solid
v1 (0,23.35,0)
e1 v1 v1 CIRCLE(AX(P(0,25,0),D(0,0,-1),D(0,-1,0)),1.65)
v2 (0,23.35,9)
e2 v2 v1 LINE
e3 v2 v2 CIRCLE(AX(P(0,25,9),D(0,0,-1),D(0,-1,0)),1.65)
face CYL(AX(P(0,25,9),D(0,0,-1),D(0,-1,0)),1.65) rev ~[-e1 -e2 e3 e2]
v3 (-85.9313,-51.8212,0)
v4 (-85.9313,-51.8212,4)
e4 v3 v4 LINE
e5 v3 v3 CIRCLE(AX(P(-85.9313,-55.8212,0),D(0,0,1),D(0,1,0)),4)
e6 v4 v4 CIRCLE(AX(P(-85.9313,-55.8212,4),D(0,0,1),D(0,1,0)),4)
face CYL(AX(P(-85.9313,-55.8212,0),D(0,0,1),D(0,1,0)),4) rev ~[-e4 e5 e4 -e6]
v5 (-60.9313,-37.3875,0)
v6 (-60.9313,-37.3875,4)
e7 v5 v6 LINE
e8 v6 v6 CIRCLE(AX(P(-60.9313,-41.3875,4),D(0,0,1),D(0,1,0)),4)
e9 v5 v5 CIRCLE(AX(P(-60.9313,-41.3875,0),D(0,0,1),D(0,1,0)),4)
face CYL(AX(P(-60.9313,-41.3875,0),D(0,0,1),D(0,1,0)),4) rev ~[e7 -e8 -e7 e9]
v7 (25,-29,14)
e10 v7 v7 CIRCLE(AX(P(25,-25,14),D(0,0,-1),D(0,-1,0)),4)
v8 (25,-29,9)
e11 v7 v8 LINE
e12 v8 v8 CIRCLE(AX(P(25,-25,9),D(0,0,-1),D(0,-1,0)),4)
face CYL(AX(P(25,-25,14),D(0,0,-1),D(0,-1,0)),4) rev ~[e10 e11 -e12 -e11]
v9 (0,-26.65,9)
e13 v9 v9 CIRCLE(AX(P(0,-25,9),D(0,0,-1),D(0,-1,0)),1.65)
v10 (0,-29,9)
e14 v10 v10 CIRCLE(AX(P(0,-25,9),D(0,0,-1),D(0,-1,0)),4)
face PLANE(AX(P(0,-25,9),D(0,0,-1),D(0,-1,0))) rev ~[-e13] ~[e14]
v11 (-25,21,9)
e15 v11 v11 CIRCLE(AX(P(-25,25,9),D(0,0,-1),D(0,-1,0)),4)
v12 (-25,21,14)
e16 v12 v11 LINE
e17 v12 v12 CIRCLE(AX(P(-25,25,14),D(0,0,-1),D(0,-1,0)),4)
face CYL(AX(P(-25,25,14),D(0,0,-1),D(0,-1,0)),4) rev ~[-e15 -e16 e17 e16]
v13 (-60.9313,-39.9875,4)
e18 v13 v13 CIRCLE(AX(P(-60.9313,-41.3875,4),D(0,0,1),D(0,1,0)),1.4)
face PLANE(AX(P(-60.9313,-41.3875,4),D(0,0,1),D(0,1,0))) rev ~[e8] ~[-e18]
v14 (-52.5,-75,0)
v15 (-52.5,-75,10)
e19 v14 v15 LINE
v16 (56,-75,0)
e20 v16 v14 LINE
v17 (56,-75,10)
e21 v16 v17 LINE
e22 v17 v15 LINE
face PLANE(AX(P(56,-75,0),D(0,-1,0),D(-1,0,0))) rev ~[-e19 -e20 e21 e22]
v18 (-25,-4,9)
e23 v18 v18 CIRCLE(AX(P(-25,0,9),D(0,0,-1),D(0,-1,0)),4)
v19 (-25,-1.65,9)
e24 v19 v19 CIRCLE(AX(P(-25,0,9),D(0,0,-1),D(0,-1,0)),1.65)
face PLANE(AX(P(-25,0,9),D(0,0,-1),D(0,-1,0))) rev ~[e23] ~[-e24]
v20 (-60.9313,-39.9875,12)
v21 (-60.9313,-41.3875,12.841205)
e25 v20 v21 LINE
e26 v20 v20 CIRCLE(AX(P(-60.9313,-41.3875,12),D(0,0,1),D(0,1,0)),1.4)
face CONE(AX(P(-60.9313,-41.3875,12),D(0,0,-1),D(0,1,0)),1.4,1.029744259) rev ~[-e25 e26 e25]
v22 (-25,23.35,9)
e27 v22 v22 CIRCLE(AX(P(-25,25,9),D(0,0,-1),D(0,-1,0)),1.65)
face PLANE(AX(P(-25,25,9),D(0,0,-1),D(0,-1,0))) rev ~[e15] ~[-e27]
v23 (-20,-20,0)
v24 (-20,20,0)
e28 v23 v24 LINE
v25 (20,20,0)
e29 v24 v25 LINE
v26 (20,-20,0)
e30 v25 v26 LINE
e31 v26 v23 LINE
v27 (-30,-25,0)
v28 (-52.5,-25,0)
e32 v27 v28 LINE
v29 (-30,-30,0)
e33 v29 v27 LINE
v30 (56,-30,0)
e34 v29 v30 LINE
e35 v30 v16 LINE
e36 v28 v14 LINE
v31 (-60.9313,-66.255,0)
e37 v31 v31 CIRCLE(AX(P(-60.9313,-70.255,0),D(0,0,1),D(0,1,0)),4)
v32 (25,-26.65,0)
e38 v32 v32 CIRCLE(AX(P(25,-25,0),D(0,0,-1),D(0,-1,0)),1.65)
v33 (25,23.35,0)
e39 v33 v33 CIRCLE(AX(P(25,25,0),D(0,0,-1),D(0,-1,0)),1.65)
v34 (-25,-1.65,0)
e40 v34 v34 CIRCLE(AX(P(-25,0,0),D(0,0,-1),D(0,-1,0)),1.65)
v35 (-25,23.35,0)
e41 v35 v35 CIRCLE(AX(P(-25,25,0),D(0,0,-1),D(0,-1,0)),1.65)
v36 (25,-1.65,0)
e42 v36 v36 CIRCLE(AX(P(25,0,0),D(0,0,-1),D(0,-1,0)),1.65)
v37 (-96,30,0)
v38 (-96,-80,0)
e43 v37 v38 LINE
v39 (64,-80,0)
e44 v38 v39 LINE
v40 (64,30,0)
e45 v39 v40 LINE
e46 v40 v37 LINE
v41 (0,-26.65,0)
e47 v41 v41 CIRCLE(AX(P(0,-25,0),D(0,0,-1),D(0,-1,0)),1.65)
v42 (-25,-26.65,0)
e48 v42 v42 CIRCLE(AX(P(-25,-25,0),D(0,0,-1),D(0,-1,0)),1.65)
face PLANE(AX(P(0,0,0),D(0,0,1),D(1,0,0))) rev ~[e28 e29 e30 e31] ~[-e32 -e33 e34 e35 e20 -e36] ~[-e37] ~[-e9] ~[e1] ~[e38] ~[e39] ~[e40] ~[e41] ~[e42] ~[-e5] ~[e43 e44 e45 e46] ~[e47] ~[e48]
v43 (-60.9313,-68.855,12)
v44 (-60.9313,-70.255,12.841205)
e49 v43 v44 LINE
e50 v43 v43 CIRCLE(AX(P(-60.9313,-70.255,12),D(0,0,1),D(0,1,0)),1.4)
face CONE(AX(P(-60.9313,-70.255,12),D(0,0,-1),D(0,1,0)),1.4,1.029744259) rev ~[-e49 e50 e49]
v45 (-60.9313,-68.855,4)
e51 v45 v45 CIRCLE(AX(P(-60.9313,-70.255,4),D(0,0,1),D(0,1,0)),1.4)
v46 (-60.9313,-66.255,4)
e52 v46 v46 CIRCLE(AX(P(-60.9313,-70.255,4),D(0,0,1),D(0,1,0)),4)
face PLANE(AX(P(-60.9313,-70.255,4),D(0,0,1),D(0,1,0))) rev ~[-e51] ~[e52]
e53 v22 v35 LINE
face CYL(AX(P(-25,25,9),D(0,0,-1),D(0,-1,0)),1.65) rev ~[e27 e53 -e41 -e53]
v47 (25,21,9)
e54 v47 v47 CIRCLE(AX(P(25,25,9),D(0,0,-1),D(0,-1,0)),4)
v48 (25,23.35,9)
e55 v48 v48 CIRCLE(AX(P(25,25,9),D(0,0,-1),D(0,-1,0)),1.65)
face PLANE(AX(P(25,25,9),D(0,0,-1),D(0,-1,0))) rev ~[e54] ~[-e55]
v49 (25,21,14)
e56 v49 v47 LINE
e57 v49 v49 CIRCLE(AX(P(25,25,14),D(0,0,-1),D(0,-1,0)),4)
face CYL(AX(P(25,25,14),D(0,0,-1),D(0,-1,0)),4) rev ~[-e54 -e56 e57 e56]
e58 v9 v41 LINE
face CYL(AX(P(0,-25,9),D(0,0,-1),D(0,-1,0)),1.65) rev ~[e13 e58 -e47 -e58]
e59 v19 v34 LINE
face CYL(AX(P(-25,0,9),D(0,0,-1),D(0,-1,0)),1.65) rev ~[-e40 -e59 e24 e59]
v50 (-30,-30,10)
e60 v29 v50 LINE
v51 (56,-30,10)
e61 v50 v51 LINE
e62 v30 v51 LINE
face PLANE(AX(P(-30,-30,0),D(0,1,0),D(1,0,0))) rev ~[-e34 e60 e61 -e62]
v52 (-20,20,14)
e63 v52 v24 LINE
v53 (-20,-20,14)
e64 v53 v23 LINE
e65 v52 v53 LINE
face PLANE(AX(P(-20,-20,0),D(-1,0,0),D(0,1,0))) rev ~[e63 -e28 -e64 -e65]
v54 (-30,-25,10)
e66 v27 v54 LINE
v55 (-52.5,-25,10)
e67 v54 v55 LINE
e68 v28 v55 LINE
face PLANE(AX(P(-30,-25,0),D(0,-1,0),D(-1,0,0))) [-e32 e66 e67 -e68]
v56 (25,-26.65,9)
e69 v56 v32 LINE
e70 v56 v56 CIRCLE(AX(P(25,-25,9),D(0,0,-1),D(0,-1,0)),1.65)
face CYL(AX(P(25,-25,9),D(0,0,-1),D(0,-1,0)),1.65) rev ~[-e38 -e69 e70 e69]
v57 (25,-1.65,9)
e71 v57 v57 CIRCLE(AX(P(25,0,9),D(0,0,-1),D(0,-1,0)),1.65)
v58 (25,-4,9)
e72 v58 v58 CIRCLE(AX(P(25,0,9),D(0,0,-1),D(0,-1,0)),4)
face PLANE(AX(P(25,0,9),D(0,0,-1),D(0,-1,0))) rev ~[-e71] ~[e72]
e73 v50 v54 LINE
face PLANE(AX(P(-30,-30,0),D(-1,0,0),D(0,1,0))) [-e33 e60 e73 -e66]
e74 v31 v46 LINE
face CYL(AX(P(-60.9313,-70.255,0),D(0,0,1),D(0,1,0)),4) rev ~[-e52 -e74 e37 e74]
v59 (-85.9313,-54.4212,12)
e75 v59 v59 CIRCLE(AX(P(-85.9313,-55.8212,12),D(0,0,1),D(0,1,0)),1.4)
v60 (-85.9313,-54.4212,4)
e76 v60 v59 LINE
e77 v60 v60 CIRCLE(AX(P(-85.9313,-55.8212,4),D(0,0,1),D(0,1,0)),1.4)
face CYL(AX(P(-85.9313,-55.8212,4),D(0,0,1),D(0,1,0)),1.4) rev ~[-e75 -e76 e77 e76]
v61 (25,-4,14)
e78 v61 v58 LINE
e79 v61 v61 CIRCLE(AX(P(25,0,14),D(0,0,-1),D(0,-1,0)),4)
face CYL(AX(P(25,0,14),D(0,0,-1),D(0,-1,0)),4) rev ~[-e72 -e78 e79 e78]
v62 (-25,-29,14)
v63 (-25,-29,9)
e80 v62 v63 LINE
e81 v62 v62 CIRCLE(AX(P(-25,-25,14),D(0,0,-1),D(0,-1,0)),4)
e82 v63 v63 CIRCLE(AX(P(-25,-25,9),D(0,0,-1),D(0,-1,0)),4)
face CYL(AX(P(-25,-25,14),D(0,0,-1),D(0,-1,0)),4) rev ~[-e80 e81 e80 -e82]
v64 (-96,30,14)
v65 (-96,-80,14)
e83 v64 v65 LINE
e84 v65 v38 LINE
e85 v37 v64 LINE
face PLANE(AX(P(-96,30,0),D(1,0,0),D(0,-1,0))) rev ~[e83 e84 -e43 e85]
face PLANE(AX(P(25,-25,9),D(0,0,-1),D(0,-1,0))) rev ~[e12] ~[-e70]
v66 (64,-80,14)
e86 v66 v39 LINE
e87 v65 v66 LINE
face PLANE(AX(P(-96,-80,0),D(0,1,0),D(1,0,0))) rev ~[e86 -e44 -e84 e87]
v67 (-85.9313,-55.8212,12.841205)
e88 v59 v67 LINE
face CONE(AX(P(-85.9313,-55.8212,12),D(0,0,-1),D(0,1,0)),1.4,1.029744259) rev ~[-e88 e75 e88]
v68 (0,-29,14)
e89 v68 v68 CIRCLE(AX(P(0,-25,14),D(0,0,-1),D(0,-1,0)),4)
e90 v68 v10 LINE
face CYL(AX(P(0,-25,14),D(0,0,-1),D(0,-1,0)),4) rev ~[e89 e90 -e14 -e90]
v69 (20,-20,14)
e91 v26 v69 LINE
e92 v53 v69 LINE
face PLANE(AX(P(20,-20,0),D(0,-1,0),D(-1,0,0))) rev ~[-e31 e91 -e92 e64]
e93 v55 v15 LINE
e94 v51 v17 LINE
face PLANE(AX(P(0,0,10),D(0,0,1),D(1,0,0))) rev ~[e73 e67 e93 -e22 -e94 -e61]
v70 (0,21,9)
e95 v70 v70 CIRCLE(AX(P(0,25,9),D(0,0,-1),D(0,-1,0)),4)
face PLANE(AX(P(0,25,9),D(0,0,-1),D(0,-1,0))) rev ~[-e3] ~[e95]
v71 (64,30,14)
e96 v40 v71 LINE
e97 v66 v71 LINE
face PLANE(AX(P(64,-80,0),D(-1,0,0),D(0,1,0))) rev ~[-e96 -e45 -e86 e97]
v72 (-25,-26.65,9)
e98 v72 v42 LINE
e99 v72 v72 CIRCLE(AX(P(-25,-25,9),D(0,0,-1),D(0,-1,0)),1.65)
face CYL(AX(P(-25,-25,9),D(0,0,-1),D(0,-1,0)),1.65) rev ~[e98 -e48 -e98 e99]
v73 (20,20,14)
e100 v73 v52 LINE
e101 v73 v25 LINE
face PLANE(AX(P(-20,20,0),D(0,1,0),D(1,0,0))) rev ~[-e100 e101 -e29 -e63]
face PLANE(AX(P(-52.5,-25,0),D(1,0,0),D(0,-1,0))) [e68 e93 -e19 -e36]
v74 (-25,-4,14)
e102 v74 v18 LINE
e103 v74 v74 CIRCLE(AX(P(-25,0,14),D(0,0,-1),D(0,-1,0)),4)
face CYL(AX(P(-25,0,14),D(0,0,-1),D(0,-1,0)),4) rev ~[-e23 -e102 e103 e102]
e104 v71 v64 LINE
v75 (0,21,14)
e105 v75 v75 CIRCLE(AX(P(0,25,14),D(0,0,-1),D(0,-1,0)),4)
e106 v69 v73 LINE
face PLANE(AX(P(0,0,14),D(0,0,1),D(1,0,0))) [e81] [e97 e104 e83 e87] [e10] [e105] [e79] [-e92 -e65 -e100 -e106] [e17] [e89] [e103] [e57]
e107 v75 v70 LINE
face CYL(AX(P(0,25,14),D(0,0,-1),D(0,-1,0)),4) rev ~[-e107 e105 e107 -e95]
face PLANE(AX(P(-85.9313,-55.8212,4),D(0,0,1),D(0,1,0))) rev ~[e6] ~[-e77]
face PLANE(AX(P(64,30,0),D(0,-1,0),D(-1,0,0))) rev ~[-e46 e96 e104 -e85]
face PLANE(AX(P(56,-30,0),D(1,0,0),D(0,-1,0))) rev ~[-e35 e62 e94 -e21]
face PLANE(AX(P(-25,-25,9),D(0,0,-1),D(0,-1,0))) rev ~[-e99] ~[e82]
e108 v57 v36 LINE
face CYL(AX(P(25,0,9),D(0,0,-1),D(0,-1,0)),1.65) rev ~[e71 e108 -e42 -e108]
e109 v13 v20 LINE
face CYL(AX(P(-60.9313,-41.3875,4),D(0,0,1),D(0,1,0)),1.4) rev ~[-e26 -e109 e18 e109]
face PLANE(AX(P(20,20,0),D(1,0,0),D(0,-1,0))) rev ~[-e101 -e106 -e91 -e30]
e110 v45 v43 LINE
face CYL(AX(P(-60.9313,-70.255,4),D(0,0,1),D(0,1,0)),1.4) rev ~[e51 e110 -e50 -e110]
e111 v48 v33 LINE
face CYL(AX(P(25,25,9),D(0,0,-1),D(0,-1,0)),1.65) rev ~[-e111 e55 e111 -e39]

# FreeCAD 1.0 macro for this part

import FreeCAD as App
import Part
import Sketcher

V = App.Vector

doc = App.newDocument("Part")
body = doc.addObject("PartDesign::Body", "Body")

# Sketch on XY plane
sketch1 = doc.addObject("Sketcher::SketchObject", "Sketch")
body.addObject(sketch1)
sketch1.AttachmentSupport = (doc.XY_Plane, [""])
sketch1.MapMode = "FlatFace"
sketch1.addGeometry([
    Part.LineSegment(V(64, -80, 0), V(64, 30, 0)),  # 0
    Part.LineSegment(V(64, 30, 0), V(-96, 30, 0)),  # 1
    Part.LineSegment(V(-96, 30, 0), V(-96, -80, 0)),  # 2
    Part.LineSegment(V(-96, -80, 0), V(64, -80, 0)),  # 3
    Part.LineSegment(V(56, -30, 0), V(56, -75, 0)),  # 4
    Part.LineSegment(V(56, -75, 0), V(-52.5, -75, 0)),  # 5
    Part.LineSegment(V(-52.5, -75, 0), V(-52.5, -25, 0)),  # 6
    Part.LineSegment(V(-52.5, -25, 0), V(-30, -25, 0)),  # 7
    Part.LineSegment(V(-30, -25, 0), V(-30, -30, 0)),  # 8
    Part.LineSegment(V(-30, -30, 0), V(56, -30, 0)),  # 9
    Part.LineSegment(V(20, 20, 0), V(20, -20, 0)),  # 10
    Part.LineSegment(V(20, -20, 0), V(-20, -20, 0)),  # 11
    Part.LineSegment(V(-20, -20, 0), V(-20, 20, 0)),  # 12
    Part.LineSegment(V(-20, 20, 0), V(20, 20, 0)),  # 13
], False)
sketch1.addConstraint([
    Sketcher.Constraint("Coincident", 0, 2, 1, 1),
    Sketcher.Constraint("Coincident", 1, 2, 2, 1),
    Sketcher.Constraint("Coincident", 2, 2, 3, 1),
    Sketcher.Constraint("Coincident", 3, 2, 0, 1),
    Sketcher.Constraint("Coincident", 4, 2, 5, 1),
    Sketcher.Constraint("Coincident", 5, 2, 6, 1),
    Sketcher.Constraint("Coincident", 6, 2, 7, 1),
    Sketcher.Constraint("Coincident", 7, 2, 8, 1),
    Sketcher.Constraint("Coincident", 8, 2, 9, 1),
    Sketcher.Constraint("Coincident", 9, 2, 4, 1),
    Sketcher.Constraint("Coincident", 10, 2, 11, 1),
    Sketcher.Constraint("Coincident", 11, 2, 12, 1),
    Sketcher.Constraint("Coincident", 12, 2, 13, 1),
    Sketcher.Constraint("Coincident", 13, 2, 10, 1),
    Sketcher.Constraint("Vertical", 0),
    Sketcher.Constraint("Horizontal", 1),
    Sketcher.Constraint("Vertical", 2),
    Sketcher.Constraint("Horizontal", 3),
    Sketcher.Constraint("Vertical", 4),
    Sketcher.Constraint("Horizontal", 5),
    Sketcher.Constraint("Vertical", 6),
    Sketcher.Constraint("Horizontal", 7),
    Sketcher.Constraint("Vertical", 8),
    Sketcher.Constraint("Horizontal", 9),
    Sketcher.Constraint("Vertical", 10),
    Sketcher.Constraint("Horizontal", 11),
    Sketcher.Constraint("Vertical", 12),
    Sketcher.Constraint("Horizontal", 13),
    Sketcher.Constraint("Symmetric", 10, 2, 12, 2, -1, 1),
    Sketcher.Constraint("Equal", 13, 10),
    Sketcher.Constraint("DistanceX", 1, 2, 1, 1, 160.0),
    Sketcher.Constraint("DistanceX", 11, 2, 11, 1, 40.0),
    Sketcher.Constraint("DistanceY", 0, 1, 0, 2, 110.0),
    Sketcher.Constraint("DistanceY", 8, 2, 8, 1, 5.0),
    Sketcher.Constraint("DistanceX", 4, 2, 3, 2, 8.0),
    Sketcher.Constraint("DistanceY", 3, 2, 4, 2, 5.0),
    Sketcher.Constraint("DistanceY", 7, 2, 10, 2, 5.0),
    Sketcher.Constraint("DistanceX", 9, 1, 9, 2, 86.0),
    Sketcher.Constraint("DistanceY", 4, 2, 4, 1, 45.0),
    Sketcher.Constraint("DistanceX", 5, 2, 5, 1, 108.5),
    Sketcher.Constraint("DistanceX", -1, 1, 0, 2, 64.0),
])
pad1 = doc.addObject("PartDesign::Pad", "Pad")
body.addObject(pad1)
pad1.Profile = sketch1
pad1.Length = 10

# Sketch on XY plane
sketch2 = doc.addObject("Sketcher::SketchObject", "Sketch001")
body.addObject(sketch2)
sketch2.AttachmentSupport = (doc.XY_Plane, [""])
sketch2.MapMode = "FlatFace"
sketch2.AttachmentOffset = App.Placement(V(0, 0, 10), App.Rotation())
sketch2.addGeometry([
    Part.LineSegment(V(64, -80, 0), V(64, 30, 0)),  # 0
    Part.LineSegment(V(64, 30, 0), V(-96, 30, 0)),  # 1
    Part.LineSegment(V(-96, 30, 0), V(-96, -80, 0)),  # 2
    Part.LineSegment(V(-96, -80, 0), V(64, -80, 0)),  # 3
    Part.LineSegment(V(-20, -20, 0), V(-20, 20, 0)),  # 4
    Part.LineSegment(V(-20, 20, 0), V(20, 20, 0)),  # 5
    Part.LineSegment(V(20, 20, 0), V(20, -20, 0)),  # 6
    Part.LineSegment(V(20, -20, 0), V(-20, -20, 0)),  # 7
], False)
sketch2.addConstraint([
    Sketcher.Constraint("Coincident", 0, 2, 1, 1),
    Sketcher.Constraint("Coincident", 1, 2, 2, 1),
    Sketcher.Constraint("Coincident", 2, 2, 3, 1),
    Sketcher.Constraint("Coincident", 3, 2, 0, 1),
    Sketcher.Constraint("Coincident", 4, 2, 5, 1),
    Sketcher.Constraint("Coincident", 5, 2, 6, 1),
    Sketcher.Constraint("Coincident", 6, 2, 7, 1),
    Sketcher.Constraint("Coincident", 7, 2, 4, 1),
    Sketcher.Constraint("Vertical", 0),
    Sketcher.Constraint("Horizontal", 1),
    Sketcher.Constraint("Vertical", 2),
    Sketcher.Constraint("Horizontal", 3),
    Sketcher.Constraint("Vertical", 4),
    Sketcher.Constraint("Horizontal", 5),
    Sketcher.Constraint("Vertical", 6),
    Sketcher.Constraint("Horizontal", 7),
    Sketcher.Constraint("Symmetric", 4, 2, 6, 2, -1, 1),
    Sketcher.Constraint("Equal", 7, 4),
    Sketcher.Constraint("DistanceX", 1, 2, 1, 1, 160.0),
    Sketcher.Constraint("DistanceX", 5, 1, 5, 2, 40.0),
    Sketcher.Constraint("DistanceY", 0, 1, 0, 2, 110.0),
    Sketcher.Constraint("DistanceX", -1, 1, 0, 2, 64.0),
    Sketcher.Constraint("DistanceY", -1, 1, 0, 2, 30.0),
])
pad2 = doc.addObject("PartDesign::Pad", "Pad001")
body.addObject(pad2)
pad2.Profile = sketch2
pad2.Length = 4

# Sketch on XY plane
sketch3 = doc.addObject("Sketcher::SketchObject", "Sketch002")
body.addObject(sketch3)
sketch3.AttachmentSupport = (doc.XY_Plane, [""])
sketch3.MapMode = "FlatFace"
sketch3.AttachmentOffset = App.Placement(V(0, 0, 14), App.Rotation())
sketch3.addGeometry([
    Part.Circle(V(25, 25, 0), V(0, 0, 1), 1.65),  # 0
    Part.Circle(V(0, 25, 0), V(0, 0, 1), 1.65),  # 1
    Part.Circle(V(-25, 25, 0), V(0, 0, 1), 1.65),  # 2
    Part.Circle(V(-25, 0, 0), V(0, 0, 1), 1.65),  # 3
    Part.Circle(V(-25, -25, 0), V(0, 0, 1), 1.65),  # 4
    Part.Circle(V(0, -25, 0), V(0, 0, 1), 1.65),  # 5
    Part.Circle(V(25, -25, 0), V(0, 0, 1), 1.65),  # 6
    Part.Circle(V(25, 0, 0), V(0, 0, 1), 1.65),  # 7
], False)
sketch3.addConstraint([
    Sketcher.Constraint("Equal", 0, 1),
    Sketcher.Constraint("Equal", 1, 2),
    Sketcher.Constraint("Equal", 2, 3),
    Sketcher.Constraint("Equal", 3, 4),
    Sketcher.Constraint("Equal", 4, 5),
    Sketcher.Constraint("Equal", 5, 6),
    Sketcher.Constraint("Equal", 6, 7),
    Sketcher.Constraint("Symmetric", 0, 3, 4, 3, -1, 1),
    Sketcher.Constraint("Symmetric", 1, 3, 5, 3, -1, 1),
    Sketcher.Constraint("Symmetric", 2, 3, 6, 3, -1, 1),
    Sketcher.Constraint("Symmetric", 3, 3, 7, 3, -1, 1),
    Sketcher.Constraint("Symmetric", 0, 3, 2, 3, -2),
    Sketcher.Constraint("PointOnObject", 1, 3, -2),
    Sketcher.Constraint("PointOnObject", 3, 3, -1),
    Sketcher.Constraint("Horizontal", 0, 3, 1, 3),
    Sketcher.Constraint("Vertical", 2, 3, 3, 3),
    Sketcher.Constraint("Diameter", 0, 3.3),
    Sketcher.Constraint("DistanceX", -1, 1, 0, 3, 25.0),
    Sketcher.Constraint("DistanceY", -1, 1, 0, 3, 25.0),
])
doc.recompute()
hole = doc.addObject("PartDesign::Hole", "Hole")
body.addObject(hole)
hole.Profile = sketch3
hole.ThreadType = "None"
hole.Diameter = 3.3
hole.DepthType = "ThroughAll"
hole.HoleCutType = "Counterbore"
hole.HoleCutDiameter = 8
hole.HoleCutDepth = 5

# Sketch on XY plane
sketch4 = doc.addObject("Sketcher::SketchObject", "Sketch003")
body.addObject(sketch4)
sketch4.AttachmentSupport = (doc.XY_Plane, [""])
sketch4.MapMode = "FlatFace"
sketch4.addGeometry([
    Part.Circle(V(-60.9313, -41.3875, 0), V(0, 0, 1), 1.4),
    Part.Circle(V(-85.9313, -55.8212, 0), V(0, 0, 1), 1.4),
    Part.Circle(V(-60.9313, -70.255, 0), V(0, 0, 1), 1.4),
], False)
sketch4.addConstraint([
    Sketcher.Constraint("Equal", 0, 1),
    Sketcher.Constraint("Equal", 1, 2),
    Sketcher.Constraint("Vertical", 0, 3, 2, 3),
    Sketcher.Constraint("Diameter", 0, 2.8),
    Sketcher.Constraint("DistanceX", 1, 3, 0, 3, 25.0),
    Sketcher.Constraint("DistanceY", 2, 3, -1, 1, 70.255),
    Sketcher.Constraint("DistanceX", 0, 3, -1, 1, 60.9313),
    Sketcher.Constraint("DistanceY", 0, 3, -1, 1, 41.3875),
    Sketcher.Constraint("DistanceY", 1, 3, -1, 1, 55.8212),
])
doc.recompute()
hole2 = doc.addObject("PartDesign::Hole", "Hole001")
body.addObject(hole2)
hole2.Profile = sketch4
hole2.ThreadType = "None"
hole2.Diameter = 2.8
hole2.DepthType = "Dimension"
hole2.Depth = 12
hole2.DrillPoint = "Angled"
hole2.DrillPointAngle = 118
hole2.HoleCutType = "Counterbore"
hole2.HoleCutDiameter = 8
hole2.HoleCutDepth = 4
hole2.Reversed = True

doc.recompute()
